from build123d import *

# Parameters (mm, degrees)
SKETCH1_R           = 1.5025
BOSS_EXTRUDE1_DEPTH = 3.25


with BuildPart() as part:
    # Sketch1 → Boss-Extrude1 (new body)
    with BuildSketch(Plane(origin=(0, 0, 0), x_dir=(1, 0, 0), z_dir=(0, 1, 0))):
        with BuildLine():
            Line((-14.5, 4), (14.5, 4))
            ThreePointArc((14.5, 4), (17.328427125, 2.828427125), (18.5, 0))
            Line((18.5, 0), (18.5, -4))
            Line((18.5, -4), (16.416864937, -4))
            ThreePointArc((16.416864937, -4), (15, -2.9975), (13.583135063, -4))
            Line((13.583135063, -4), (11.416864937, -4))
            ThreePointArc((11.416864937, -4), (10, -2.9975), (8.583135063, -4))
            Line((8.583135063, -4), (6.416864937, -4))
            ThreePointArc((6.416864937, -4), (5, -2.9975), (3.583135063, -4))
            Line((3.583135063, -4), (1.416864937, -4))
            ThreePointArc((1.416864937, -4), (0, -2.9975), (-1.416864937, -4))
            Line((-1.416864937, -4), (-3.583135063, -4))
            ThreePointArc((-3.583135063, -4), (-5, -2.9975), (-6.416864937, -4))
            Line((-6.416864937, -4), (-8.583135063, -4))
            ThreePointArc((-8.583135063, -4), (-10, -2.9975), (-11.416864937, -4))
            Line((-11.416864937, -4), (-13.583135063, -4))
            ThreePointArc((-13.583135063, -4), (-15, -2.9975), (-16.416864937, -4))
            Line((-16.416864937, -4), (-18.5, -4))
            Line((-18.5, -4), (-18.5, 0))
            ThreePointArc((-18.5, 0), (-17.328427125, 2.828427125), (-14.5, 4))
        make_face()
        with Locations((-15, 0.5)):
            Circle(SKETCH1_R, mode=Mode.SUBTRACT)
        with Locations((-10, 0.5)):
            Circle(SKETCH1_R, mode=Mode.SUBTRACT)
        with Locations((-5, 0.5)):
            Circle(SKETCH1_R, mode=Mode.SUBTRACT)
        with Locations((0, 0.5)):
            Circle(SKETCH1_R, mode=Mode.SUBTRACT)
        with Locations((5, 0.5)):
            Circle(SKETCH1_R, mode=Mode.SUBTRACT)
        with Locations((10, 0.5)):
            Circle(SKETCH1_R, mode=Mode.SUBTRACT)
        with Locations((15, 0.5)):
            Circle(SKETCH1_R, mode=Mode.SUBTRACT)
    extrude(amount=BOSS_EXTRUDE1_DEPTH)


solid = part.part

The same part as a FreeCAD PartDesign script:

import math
import FreeCAD as App
import Part
import Sketcher
Q = App.Units.Quantity

doc = App.newDocument("Part")
params = doc.addObject("Spreadsheet::Sheet", "Params")
for row, (alias, value) in enumerate([
    ("sketch1_radius", "4 mm"),
    ("sketch1_width", "29 mm"),
    ("sketch1_height", "4 mm"),
    ("pad1_length", "3.25 mm"),
], start=1):
    params.set(f"A{row}", alias)
    params.set(f"B{row}", "=" + value)
    params.setAlias(f"B{row}", alias)

body = doc.addObject("PartDesign::Body", "Body")

sketch1 = body.newObject("Sketcher::SketchObject", "Sketch")
sketch1.AttachmentSupport = (doc.getObject("XZ_Plane"), [""])
sketch1.MapMode = "FlatFace"
sketch1.addGeometry([
    Part.LineSegment(App.Vector(14.5, -4, 0), App.Vector(-14.5, -4, 0)),
    Part.ArcOfCircle(Part.Circle(App.Vector(-14.5, 0, 0), App.Vector(0, 0, 1), 4), math.radians(180), math.radians(270)),
    Part.LineSegment(App.Vector(-18.5, 0, 0), App.Vector(-18.5, 4, 0)),
    Part.LineSegment(App.Vector(-18.5, 4, 0), App.Vector(-16.416865, 4, 0)),
    Part.ArcOfCircle(Part.Circle(App.Vector(-15, 4.5, 0), App.Vector(0, 0, 1), 1.5025), math.radians(-160.562482), math.radians(-19.437518)),
    Part.LineSegment(App.Vector(-13.583135, 4, 0), App.Vector(-11.416865, 4, 0)),
    Part.ArcOfCircle(Part.Circle(App.Vector(-10, 4.5, 0), App.Vector(0, 0, 1), 1.5025), math.radians(-160.562482), math.radians(-19.437518)),
    Part.LineSegment(App.Vector(-8.583135, 4, 0), App.Vector(-6.416865, 4, 0)),
    Part.ArcOfCircle(Part.Circle(App.Vector(-5, 4.5, 0), App.Vector(0, 0, 1), 1.5025), math.radians(-160.562482), math.radians(-19.437518)),
    Part.LineSegment(App.Vector(-3.583135, 4, 0), App.Vector(-1.416865, 4, 0)),
    Part.ArcOfCircle(Part.Circle(App.Vector(0, 4.5, 0), App.Vector(0, 0, 1), 1.5025), math.radians(-160.562482), math.radians(-19.437518)),
    Part.LineSegment(App.Vector(1.416865, 4, 0), App.Vector(3.583135, 4, 0)),
    Part.ArcOfCircle(Part.Circle(App.Vector(5, 4.5, 0), App.Vector(0, 0, 1), 1.5025), math.radians(-160.562482), math.radians(-19.437518)),
    Part.LineSegment(App.Vector(6.416865, 4, 0), App.Vector(8.583135, 4, 0)),
    Part.ArcOfCircle(Part.Circle(App.Vector(10, 4.5, 0), App.Vector(0, 0, 1), 1.5025), math.radians(-160.562482), math.radians(-19.437518)),
    Part.LineSegment(App.Vector(11.416865, 4, 0), App.Vector(13.583135, 4, 0)),
    Part.ArcOfCircle(Part.Circle(App.Vector(15, 4.5, 0), App.Vector(0, 0, 1), 1.5025), math.radians(-160.562482), math.radians(-19.437518)),
    Part.LineSegment(App.Vector(16.416865, 4, 0), App.Vector(18.5, 4, 0)),
    Part.LineSegment(App.Vector(18.5, 4, 0), App.Vector(18.5, 0, 0)),
    Part.ArcOfCircle(Part.Circle(App.Vector(14.5, 0, 0), App.Vector(0, 0, 1), 4), math.radians(-90), math.radians(0)),
    Part.Circle(App.Vector(15, -0.5, 0), App.Vector(0, 0, 1), 1.5025),
    Part.Circle(App.Vector(10, -0.5, 0), App.Vector(0, 0, 1), 1.5025),
    Part.Circle(App.Vector(5, -0.5, 0), App.Vector(0, 0, 1), 1.5025),
    Part.Circle(App.Vector(0, -0.5, 0), App.Vector(0, 0, 1), 1.5025),
    Part.Circle(App.Vector(-5, -0.5, 0), App.Vector(0, 0, 1), 1.5025),
    Part.Circle(App.Vector(-10, -0.5, 0), App.Vector(0, 0, 1), 1.5025),
    Part.Circle(App.Vector(-15, -0.5, 0), App.Vector(0, 0, 1), 1.5025),
], False)
sketch1.addConstraint([
    Sketcher.Constraint("Tangent", 0, 2, 1, 2),
    Sketcher.Constraint("Tangent", 1, 1, 2, 1),
    Sketcher.Constraint("Coincident", 2, 2, 3, 1),
    Sketcher.Constraint("Coincident", 3, 2, 4, 1),
    Sketcher.Constraint("Coincident", 4, 2, 5, 1),
    Sketcher.Constraint("Coincident", 5, 2, 6, 1),
    Sketcher.Constraint("Coincident", 6, 2, 7, 1),
    Sketcher.Constraint("Coincident", 7, 2, 8, 1),
    Sketcher.Constraint("Coincident", 8, 2, 9, 1),
    Sketcher.Constraint("Coincident", 9, 2, 10, 1),
    Sketcher.Constraint("Coincident", 10, 2, 11, 1),
    Sketcher.Constraint("Coincident", 11, 2, 12, 1),
    Sketcher.Constraint("Coincident", 12, 2, 13, 1),
    Sketcher.Constraint("Coincident", 13, 2, 14, 1),
    Sketcher.Constraint("Coincident", 14, 2, 15, 1),
    Sketcher.Constraint("Coincident", 15, 2, 16, 1),
    Sketcher.Constraint("Coincident", 16, 2, 17, 1),
    Sketcher.Constraint("Coincident", 17, 2, 18, 1),
    Sketcher.Constraint("Tangent", 18, 2, 19, 2),
    Sketcher.Constraint("Tangent", 19, 1, 0, 1),
    Sketcher.Constraint("Horizontal", 0),
    Sketcher.Constraint("Vertical", 2),
    Sketcher.Constraint("Horizontal", 3),
    Sketcher.Constraint("Horizontal", 5),
    Sketcher.Constraint("Horizontal", 7),
    Sketcher.Constraint("Horizontal", 9),
    Sketcher.Constraint("Horizontal", 11),
    Sketcher.Constraint("Horizontal", 13),
    Sketcher.Constraint("Horizontal", 15),
    Sketcher.Constraint("Horizontal", 17),
    Sketcher.Constraint("Vertical", 18),
    Sketcher.Constraint("Equal", 4, 6),
    Sketcher.Constraint("Equal", 6, 8),
    Sketcher.Constraint("Equal", 8, 10),
    Sketcher.Constraint("Equal", 10, 12),
    Sketcher.Constraint("Equal", 12, 14),
    Sketcher.Constraint("Equal", 14, 16),
    Sketcher.Constraint("Equal", 1, 19),
    Sketcher.Constraint("Equal", 16, 20),
    Sketcher.Constraint("Equal", 20, 21),
    Sketcher.Constraint("Equal", 21, 22),
    Sketcher.Constraint("Equal", 22, 23),
    Sketcher.Constraint("Equal", 23, 24),
    Sketcher.Constraint("Equal", 24, 25),
    Sketcher.Constraint("Equal", 25, 26),
    Sketcher.Constraint("Symmetric", 1, 3, 19, 3, -1, 1),
    Sketcher.Constraint("Symmetric", 8, 3, 12, 3, -2),
    Sketcher.Constraint("Symmetric", 6, 3, 14, 3, -2),
    Sketcher.Constraint("Symmetric", 4, 3, 16, 3, -2),
    Sketcher.Constraint("Symmetric", 22, 3, 24, 3, -2),
    Sketcher.Constraint("Symmetric", 21, 3, 25, 3, -2),
    Sketcher.Constraint("Symmetric", 20, 3, 26, 3, -2),
    Sketcher.Constraint("Symmetric", 9, 2, 10, 2, -2),
    Sketcher.Constraint("PointOnObject", 23, 3, -2),
    Sketcher.Constraint("Horizontal", 4, 3, 6, 3),
    Sketcher.Constraint("Horizontal", 6, 3, 8, 3),
    Sketcher.Constraint("Horizontal", 8, 3, 10, 3),
    Sketcher.Constraint("Horizontal", 20, 3, 21, 3),
    Sketcher.Constraint("Horizontal", 21, 3, 22, 3),
    Sketcher.Constraint("Horizontal", 22, 3, 23, 3),
    Sketcher.Constraint("Horizontal", 3, 2, 4, 2),
    Sketcher.Constraint("Horizontal", 5, 2, 6, 2),
    Sketcher.Constraint("Horizontal", 7, 2, 8, 2),
    Sketcher.Constraint("Horizontal", 11, 2, 12, 2),
    Sketcher.Constraint("Horizontal", 13, 2, 14, 2),
    Sketcher.Constraint("Horizontal", 15, 2, 16, 2),
    Sketcher.Constraint("Vertical", 16, 3, 20, 3),
    Sketcher.Constraint("Vertical", 14, 3, 21, 3),
    Sketcher.Constraint("Vertical", 12, 3, 22, 3),
    Sketcher.Constraint("Equal", 5, 7),
    Sketcher.Constraint("Equal", 7, 9),
    Sketcher.Constraint("Radius", 1, Q("4 mm")),
    Sketcher.Constraint("DistanceX", 0, 2, 0, 1, Q("29 mm")),
    Sketcher.Constraint("DistanceY", 2, 1, 2, 2, Q("4 mm")),
    Sketcher.Constraint("Diameter", 20, Q("3.005 mm")),
    Sketcher.Constraint("DistanceX", 4, 3, -1, 1, Q("15 mm")),
    Sketcher.Constraint("DistanceY", 20, 3, 16, 3, Q("5 mm")),
    Sketcher.Constraint("DistanceY", -1, 1, 4, 3, Q("4.5 mm")),
])
sketch1.setExpression("Constraints[71]", "Params.sketch1_radius")
sketch1.setExpression("Constraints[72]", "Params.sketch1_width")
sketch1.setExpression("Constraints[73]", "Params.sketch1_height")
pad1 = body.newObject("PartDesign::Pad", "Pad")
pad1.Profile = sketch1
pad1.setExpression("Length", "Params.pad1_length")
pad1.Reversed = True

doc.recompute()
